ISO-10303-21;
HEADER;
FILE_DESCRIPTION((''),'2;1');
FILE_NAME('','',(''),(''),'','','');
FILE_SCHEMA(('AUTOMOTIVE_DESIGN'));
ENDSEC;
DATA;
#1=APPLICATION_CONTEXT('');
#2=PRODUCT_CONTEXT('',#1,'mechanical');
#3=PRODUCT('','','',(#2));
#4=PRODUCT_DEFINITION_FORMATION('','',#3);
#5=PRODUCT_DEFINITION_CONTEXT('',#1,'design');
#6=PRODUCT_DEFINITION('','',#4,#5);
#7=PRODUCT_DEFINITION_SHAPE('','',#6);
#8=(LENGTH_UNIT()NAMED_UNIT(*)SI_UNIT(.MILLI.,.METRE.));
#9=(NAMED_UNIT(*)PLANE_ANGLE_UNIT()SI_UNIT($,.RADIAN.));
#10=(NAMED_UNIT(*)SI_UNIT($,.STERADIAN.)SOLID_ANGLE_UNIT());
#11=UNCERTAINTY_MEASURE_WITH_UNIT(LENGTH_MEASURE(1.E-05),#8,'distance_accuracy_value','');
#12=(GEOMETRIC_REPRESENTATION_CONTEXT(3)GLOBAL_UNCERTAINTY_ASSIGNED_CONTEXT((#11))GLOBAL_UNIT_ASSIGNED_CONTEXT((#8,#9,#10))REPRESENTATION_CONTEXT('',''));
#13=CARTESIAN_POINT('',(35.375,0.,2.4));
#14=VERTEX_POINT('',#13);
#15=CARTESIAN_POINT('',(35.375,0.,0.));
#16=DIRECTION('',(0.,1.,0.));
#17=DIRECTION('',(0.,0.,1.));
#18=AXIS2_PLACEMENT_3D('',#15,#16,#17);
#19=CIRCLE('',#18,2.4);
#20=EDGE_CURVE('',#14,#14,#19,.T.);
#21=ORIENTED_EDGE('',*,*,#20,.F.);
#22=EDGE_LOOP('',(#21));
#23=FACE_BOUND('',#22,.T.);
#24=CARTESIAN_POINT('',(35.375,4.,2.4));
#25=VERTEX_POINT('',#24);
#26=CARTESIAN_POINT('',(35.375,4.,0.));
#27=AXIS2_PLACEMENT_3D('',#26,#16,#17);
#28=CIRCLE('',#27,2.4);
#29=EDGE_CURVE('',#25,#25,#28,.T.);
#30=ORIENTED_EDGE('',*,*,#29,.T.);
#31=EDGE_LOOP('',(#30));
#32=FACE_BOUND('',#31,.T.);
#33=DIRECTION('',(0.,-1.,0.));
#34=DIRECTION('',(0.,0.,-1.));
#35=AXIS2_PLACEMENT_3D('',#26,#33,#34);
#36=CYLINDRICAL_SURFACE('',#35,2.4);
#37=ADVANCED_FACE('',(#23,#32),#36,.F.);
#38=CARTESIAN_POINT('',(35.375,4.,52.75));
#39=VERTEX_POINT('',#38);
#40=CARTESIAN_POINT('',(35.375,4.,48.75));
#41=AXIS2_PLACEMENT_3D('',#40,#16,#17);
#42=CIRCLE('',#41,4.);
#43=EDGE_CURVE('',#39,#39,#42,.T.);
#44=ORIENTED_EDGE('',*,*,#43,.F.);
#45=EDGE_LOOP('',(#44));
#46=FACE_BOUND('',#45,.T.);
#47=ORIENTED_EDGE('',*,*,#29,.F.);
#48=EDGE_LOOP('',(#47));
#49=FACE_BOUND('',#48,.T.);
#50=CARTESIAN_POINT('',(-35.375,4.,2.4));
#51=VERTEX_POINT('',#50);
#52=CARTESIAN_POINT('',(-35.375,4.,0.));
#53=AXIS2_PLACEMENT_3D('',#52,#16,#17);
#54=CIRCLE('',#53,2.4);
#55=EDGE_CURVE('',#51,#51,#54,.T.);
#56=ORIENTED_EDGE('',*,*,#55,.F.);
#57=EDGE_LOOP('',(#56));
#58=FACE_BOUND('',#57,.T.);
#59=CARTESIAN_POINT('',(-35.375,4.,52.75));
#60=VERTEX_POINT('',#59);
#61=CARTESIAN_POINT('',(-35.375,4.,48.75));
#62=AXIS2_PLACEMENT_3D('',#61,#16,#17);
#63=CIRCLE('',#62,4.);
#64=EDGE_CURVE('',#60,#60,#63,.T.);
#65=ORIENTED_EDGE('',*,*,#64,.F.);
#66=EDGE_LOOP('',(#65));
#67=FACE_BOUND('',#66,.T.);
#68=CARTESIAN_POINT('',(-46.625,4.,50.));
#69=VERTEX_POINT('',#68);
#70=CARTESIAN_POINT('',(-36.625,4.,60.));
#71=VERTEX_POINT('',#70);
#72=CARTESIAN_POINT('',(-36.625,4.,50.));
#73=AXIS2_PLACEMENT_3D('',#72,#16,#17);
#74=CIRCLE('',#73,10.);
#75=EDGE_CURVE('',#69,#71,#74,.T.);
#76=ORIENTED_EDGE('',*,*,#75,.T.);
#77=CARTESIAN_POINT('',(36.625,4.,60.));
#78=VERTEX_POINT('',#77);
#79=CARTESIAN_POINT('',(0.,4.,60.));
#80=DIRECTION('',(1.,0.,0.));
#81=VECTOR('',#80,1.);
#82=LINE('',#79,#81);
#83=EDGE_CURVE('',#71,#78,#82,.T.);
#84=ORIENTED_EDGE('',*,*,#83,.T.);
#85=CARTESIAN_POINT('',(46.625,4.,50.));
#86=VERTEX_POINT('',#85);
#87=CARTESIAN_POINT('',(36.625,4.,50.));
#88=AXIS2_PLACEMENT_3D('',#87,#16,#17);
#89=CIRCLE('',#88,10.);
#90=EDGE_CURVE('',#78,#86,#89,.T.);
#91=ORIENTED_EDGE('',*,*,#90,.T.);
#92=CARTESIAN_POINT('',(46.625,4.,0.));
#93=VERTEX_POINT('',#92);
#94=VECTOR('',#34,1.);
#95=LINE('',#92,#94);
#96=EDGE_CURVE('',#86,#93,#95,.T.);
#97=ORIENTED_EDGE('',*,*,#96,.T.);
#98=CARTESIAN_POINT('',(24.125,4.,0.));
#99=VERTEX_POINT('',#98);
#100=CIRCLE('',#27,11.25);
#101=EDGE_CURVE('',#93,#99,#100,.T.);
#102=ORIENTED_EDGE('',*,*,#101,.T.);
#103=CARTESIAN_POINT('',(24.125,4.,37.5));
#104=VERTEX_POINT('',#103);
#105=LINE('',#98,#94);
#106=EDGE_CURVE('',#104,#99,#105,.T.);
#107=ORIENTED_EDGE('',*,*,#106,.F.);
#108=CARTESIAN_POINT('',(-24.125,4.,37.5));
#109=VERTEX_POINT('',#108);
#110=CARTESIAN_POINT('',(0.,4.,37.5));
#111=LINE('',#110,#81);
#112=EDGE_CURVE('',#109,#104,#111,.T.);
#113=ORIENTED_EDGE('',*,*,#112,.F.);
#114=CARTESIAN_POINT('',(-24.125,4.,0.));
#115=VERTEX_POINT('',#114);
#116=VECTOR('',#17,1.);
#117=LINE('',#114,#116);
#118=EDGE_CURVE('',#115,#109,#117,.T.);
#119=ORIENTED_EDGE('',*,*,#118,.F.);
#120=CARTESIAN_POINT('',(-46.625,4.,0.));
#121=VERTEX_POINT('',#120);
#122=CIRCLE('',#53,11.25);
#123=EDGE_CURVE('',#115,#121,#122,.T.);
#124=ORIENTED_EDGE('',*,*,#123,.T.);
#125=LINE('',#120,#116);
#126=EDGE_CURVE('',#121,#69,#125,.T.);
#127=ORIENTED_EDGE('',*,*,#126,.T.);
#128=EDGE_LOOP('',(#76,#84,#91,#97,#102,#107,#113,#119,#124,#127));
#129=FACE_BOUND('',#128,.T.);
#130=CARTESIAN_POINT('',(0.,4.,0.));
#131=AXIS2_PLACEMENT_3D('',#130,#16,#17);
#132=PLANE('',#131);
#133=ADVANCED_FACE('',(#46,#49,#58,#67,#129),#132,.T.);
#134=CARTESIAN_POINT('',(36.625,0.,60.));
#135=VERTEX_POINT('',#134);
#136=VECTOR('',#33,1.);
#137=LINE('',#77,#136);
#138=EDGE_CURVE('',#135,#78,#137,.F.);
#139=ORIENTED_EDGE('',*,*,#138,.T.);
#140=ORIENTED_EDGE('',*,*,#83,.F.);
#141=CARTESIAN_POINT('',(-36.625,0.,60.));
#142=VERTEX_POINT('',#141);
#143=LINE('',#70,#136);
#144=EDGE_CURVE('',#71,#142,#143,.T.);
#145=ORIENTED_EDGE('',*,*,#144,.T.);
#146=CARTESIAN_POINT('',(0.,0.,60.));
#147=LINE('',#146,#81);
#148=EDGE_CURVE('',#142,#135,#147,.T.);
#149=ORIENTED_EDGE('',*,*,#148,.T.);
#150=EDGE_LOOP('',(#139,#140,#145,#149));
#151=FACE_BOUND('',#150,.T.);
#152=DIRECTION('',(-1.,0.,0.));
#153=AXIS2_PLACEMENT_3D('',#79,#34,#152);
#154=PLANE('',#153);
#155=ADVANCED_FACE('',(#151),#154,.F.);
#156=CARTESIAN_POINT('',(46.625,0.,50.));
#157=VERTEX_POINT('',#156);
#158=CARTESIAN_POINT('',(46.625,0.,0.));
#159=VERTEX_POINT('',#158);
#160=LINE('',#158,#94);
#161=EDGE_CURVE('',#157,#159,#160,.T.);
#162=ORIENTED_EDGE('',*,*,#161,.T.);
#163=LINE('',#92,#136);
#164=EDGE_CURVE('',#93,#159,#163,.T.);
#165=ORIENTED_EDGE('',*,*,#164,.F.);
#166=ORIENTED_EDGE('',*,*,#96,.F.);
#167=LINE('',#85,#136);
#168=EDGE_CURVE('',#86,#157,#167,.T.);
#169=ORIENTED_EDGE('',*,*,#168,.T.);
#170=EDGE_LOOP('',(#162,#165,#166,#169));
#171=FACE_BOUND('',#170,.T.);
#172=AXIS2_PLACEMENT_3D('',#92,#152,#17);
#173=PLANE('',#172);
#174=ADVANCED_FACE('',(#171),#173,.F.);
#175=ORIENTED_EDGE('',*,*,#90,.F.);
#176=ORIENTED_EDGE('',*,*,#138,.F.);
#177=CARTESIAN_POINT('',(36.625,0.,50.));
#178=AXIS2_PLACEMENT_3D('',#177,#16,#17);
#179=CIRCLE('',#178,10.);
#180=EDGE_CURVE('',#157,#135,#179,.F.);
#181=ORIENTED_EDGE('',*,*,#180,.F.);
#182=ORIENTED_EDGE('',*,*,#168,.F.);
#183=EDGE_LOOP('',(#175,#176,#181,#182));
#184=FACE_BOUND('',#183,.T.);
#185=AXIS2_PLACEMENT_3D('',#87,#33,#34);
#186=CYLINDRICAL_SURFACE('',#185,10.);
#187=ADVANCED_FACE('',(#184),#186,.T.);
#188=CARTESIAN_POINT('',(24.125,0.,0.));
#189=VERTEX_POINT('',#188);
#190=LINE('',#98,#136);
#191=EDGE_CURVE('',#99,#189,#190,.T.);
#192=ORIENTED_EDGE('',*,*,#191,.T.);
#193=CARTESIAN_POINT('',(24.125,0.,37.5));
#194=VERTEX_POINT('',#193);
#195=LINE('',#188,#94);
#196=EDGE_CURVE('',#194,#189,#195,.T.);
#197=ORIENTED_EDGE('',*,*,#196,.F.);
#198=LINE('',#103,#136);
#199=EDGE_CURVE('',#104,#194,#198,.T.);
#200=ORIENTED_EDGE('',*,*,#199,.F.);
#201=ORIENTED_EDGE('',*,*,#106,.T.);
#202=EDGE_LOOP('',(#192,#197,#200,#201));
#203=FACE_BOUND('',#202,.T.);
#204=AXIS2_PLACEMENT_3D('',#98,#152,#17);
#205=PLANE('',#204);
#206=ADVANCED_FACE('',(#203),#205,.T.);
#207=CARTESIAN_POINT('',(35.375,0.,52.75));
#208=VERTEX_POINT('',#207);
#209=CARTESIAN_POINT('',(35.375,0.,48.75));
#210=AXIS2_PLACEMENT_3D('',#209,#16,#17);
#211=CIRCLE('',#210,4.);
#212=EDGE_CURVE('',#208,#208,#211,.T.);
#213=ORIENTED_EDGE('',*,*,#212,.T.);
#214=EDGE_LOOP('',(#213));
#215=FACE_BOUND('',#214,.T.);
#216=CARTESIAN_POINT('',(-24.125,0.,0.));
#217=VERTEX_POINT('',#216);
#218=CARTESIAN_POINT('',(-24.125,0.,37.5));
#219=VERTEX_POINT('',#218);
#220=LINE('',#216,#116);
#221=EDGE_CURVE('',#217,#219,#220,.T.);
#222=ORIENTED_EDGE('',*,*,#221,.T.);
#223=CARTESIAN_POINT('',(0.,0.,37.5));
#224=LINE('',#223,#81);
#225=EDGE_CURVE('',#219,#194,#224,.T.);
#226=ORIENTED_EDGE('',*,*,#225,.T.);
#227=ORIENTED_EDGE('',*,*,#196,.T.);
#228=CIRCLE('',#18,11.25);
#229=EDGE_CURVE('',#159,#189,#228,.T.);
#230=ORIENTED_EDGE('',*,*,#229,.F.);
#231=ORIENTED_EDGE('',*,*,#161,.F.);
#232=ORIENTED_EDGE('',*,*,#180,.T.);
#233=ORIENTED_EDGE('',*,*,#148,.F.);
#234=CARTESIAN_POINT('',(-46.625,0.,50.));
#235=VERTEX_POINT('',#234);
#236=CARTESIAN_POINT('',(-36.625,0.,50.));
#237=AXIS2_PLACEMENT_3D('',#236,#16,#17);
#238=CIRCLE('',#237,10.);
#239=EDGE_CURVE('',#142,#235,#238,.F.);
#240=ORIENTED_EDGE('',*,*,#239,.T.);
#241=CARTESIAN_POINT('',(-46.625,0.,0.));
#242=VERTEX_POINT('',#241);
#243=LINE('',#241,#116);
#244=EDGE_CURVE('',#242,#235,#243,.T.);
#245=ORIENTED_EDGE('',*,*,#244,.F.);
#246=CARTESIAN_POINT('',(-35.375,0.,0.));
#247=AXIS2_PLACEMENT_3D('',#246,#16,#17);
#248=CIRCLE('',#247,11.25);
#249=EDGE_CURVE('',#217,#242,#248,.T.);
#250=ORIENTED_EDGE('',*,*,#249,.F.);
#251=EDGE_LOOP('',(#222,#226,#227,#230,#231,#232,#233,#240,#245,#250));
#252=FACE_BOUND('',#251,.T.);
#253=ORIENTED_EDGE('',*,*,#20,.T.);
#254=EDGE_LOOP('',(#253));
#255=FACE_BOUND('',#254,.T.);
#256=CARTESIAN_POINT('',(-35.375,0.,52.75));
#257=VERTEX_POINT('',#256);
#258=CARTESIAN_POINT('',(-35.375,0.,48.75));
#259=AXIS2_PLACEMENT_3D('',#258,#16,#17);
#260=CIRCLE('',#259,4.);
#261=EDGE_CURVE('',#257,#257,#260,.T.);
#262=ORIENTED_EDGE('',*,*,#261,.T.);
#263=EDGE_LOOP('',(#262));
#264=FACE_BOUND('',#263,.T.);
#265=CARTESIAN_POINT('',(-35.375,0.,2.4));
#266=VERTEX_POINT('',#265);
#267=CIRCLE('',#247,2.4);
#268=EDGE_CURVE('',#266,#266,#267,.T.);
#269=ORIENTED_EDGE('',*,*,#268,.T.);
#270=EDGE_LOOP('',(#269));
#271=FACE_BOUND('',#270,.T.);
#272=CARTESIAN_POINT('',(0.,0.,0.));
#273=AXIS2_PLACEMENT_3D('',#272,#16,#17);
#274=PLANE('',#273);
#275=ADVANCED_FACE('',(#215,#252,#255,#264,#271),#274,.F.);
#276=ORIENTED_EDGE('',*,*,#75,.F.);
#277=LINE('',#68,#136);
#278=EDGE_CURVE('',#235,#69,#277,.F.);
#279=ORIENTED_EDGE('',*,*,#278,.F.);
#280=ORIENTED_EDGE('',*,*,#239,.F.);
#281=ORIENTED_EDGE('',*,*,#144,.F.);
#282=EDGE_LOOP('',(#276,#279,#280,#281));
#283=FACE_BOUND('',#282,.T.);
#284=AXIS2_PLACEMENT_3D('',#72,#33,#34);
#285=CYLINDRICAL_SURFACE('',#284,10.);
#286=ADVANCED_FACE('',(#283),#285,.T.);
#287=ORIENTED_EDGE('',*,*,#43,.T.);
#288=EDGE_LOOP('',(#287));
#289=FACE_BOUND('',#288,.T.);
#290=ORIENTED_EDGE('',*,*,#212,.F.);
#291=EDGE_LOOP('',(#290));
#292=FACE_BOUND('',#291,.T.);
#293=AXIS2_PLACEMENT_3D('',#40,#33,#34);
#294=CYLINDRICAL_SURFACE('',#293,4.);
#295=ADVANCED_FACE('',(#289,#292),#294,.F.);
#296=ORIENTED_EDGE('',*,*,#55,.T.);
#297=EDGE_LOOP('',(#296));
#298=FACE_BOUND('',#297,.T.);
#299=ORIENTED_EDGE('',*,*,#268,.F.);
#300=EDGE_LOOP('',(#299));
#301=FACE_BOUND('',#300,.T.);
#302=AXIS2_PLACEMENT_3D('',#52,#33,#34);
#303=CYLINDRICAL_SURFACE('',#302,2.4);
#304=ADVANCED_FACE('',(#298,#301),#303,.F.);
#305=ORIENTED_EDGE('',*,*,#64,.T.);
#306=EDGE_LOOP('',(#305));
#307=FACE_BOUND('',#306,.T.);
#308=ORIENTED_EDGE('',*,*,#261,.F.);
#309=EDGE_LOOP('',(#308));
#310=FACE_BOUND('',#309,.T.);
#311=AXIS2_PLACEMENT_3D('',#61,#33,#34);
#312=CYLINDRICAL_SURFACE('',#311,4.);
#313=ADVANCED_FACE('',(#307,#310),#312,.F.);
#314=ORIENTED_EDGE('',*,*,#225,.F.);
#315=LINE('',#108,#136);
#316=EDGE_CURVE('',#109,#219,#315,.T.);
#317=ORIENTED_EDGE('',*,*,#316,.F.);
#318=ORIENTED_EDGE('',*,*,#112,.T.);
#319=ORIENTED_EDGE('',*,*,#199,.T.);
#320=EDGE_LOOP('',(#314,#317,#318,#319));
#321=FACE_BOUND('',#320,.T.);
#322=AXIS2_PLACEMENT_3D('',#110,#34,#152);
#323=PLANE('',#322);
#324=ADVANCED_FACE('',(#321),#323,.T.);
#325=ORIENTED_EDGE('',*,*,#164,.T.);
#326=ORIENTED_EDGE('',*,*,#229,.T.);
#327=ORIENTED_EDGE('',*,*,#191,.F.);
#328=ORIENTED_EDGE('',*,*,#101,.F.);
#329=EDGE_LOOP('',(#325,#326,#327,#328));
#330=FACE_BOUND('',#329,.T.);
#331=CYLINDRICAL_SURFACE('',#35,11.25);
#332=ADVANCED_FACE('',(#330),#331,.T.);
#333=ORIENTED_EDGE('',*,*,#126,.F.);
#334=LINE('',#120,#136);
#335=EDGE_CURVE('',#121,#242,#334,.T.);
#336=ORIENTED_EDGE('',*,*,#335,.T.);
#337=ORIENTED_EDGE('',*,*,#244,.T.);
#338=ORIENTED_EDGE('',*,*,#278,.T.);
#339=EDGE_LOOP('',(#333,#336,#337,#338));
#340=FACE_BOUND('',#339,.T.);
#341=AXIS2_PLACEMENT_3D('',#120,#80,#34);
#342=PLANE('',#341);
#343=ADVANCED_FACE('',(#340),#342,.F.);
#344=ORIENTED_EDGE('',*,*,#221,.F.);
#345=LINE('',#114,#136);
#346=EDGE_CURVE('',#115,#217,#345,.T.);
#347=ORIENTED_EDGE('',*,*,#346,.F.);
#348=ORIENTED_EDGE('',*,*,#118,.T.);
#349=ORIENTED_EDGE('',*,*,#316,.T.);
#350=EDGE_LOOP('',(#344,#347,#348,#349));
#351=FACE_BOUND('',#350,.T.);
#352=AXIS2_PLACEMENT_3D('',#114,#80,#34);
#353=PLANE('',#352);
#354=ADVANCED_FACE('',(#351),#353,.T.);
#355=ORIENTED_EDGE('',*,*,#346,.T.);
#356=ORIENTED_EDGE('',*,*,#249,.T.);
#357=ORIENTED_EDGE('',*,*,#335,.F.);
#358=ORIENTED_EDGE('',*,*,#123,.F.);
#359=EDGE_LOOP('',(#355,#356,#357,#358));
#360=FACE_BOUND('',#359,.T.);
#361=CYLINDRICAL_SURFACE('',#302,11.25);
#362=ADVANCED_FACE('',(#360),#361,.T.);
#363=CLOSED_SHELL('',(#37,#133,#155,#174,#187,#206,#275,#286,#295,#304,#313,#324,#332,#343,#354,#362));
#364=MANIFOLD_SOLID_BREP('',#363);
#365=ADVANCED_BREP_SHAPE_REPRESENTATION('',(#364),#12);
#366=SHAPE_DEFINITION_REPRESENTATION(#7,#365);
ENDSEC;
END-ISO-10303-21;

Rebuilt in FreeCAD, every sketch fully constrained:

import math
import FreeCAD as App
import Part
import Sketcher

V = App.Vector
Q = App.Units.Quantity


def edges_at(feature, points):
    """Names of the edges that pass closest to the given points."""
    edges = feature.Shape.Edges
    near = lambda p: min(range(len(edges)), key=lambda i: edges[i].distToShape(Part.Vertex(*p))[0])
    return sorted({f"Edge{near(p) + 1}" for p in points})

doc = App.newDocument("Part")
body = doc.addObject("PartDesign::Body", "Body")

# Sketch on XZ plane
sketch1 = doc.addObject("Sketcher::SketchObject", "Sketch")
body.addObject(sketch1)
sketch1.AttachmentSupport = (doc.XZ_Plane, [""])
sketch1.MapMode = "FlatFace"
sketch1.addGeometry([
    Part.LineSegment(V(-24.1, 37.5, 0), V(-24.1, 0, 0)),  # 0
    Part.ArcOfCircle(Part.Circle(V(-35.4, 0, 0), V(0, 0, 1), 11.2), math.radians(180), math.radians(360)),  # 1
    Part.LineSegment(V(-46.6, 0, 0), V(-46.6, 60, 0)),  # 2
    Part.LineSegment(V(-46.6, 60, 0), V(46.6, 60, 0)),  # 3
    Part.LineSegment(V(46.6, 60, 0), V(46.6, 0, 0)),  # 4
    Part.ArcOfCircle(Part.Circle(V(35.4, 0, 0), V(0, 0, 1), 11.2), math.radians(180), math.radians(360)),  # 5
    Part.LineSegment(V(24.1, 0, 0), V(24.1, 37.5, 0)),  # 6
    Part.LineSegment(V(24.1, 37.5, 0), V(-24.1, 37.5, 0)),  # 7
    Part.Circle(V(-35.4, 48.8, 0), V(0, 0, 1), 4),  # 8
    Part.Circle(V(35.4, 48.8, 0), V(0, 0, 1), 4),  # 9
    Part.Circle(V(-35.4, 0, 0), V(0, 0, 1), 2.4),  # 10
    Part.Circle(V(35.4, 0, 0), V(0, 0, 1), 2.4),  # 11
], False)
sketch1.addConstraint([
    Sketcher.Constraint("Tangent", 0, 2, 1, 2),
    Sketcher.Constraint("Tangent", 1, 1, 2, 1),
    Sketcher.Constraint("Coincident", 2, 2, 3, 1),
    Sketcher.Constraint("Coincident", 3, 2, 4, 1),
    Sketcher.Constraint("Tangent", 4, 2, 5, 2),
    Sketcher.Constraint("Tangent", 5, 1, 6, 1),
    Sketcher.Constraint("Coincident", 6, 2, 7, 1),
    Sketcher.Constraint("Coincident", 7, 2, 0, 1),
    Sketcher.Constraint("Vertical", 0),
    Sketcher.Constraint("Vertical", 2),
    Sketcher.Constraint("Horizontal", 3),
    Sketcher.Constraint("Vertical", 4),
    Sketcher.Constraint("Vertical", 6),
    Sketcher.Constraint("Horizontal", 7),
    Sketcher.Constraint("Coincident", 10, 3, 1, 3),
    Sketcher.Constraint("Coincident", 11, 3, 5, 3),
    Sketcher.Constraint("Equal", 1, 5),
    Sketcher.Constraint("Equal", 8, 9),
    Sketcher.Constraint("Equal", 10, 11),
    Sketcher.Constraint("Symmetric", 1, 3, 5, 3, -1, 1),
    Sketcher.Constraint("Symmetric", 8, 3, 9, 3, -2),
    Sketcher.Constraint("PointOnObject", 1, 3, -1),
    Sketcher.Constraint("Vertical", 1, 3, 8, 3),
    Sketcher.Constraint("Diameter", 8, Q("8 mm")),
    Sketcher.Constraint("Diameter", 10, Q("4.8 mm")),
    Sketcher.Constraint("DistanceY", 2, 1, 2, 2, Q("60 mm")),
    Sketcher.Constraint("Radius", 1, Q("11.25 mm")),
    Sketcher.Constraint("DistanceY", 0, 2, 0, 1, Q("37.5 mm")),
    Sketcher.Constraint("DistanceX", 1, 1, 5, 3, Q("82 mm")),
    Sketcher.Constraint("DistanceY", -1, 1, 8, 3, Q("48.75 mm")),
])
pad1 = doc.addObject("PartDesign::Pad", "Pad")
body.addObject(pad1)
pad1.Profile = sketch1
pad1.Length = 4
pad1.Reversed = True
doc.recompute()

fillet = doc.addObject("PartDesign::Fillet", "Fillet")
body.addObject(fillet)
fillet.Base = (pad1, edges_at(pad1, [(46.625, 2, 60), (-46.625, 2, 60)]))
fillet.Radius = 10

doc.recompute()
